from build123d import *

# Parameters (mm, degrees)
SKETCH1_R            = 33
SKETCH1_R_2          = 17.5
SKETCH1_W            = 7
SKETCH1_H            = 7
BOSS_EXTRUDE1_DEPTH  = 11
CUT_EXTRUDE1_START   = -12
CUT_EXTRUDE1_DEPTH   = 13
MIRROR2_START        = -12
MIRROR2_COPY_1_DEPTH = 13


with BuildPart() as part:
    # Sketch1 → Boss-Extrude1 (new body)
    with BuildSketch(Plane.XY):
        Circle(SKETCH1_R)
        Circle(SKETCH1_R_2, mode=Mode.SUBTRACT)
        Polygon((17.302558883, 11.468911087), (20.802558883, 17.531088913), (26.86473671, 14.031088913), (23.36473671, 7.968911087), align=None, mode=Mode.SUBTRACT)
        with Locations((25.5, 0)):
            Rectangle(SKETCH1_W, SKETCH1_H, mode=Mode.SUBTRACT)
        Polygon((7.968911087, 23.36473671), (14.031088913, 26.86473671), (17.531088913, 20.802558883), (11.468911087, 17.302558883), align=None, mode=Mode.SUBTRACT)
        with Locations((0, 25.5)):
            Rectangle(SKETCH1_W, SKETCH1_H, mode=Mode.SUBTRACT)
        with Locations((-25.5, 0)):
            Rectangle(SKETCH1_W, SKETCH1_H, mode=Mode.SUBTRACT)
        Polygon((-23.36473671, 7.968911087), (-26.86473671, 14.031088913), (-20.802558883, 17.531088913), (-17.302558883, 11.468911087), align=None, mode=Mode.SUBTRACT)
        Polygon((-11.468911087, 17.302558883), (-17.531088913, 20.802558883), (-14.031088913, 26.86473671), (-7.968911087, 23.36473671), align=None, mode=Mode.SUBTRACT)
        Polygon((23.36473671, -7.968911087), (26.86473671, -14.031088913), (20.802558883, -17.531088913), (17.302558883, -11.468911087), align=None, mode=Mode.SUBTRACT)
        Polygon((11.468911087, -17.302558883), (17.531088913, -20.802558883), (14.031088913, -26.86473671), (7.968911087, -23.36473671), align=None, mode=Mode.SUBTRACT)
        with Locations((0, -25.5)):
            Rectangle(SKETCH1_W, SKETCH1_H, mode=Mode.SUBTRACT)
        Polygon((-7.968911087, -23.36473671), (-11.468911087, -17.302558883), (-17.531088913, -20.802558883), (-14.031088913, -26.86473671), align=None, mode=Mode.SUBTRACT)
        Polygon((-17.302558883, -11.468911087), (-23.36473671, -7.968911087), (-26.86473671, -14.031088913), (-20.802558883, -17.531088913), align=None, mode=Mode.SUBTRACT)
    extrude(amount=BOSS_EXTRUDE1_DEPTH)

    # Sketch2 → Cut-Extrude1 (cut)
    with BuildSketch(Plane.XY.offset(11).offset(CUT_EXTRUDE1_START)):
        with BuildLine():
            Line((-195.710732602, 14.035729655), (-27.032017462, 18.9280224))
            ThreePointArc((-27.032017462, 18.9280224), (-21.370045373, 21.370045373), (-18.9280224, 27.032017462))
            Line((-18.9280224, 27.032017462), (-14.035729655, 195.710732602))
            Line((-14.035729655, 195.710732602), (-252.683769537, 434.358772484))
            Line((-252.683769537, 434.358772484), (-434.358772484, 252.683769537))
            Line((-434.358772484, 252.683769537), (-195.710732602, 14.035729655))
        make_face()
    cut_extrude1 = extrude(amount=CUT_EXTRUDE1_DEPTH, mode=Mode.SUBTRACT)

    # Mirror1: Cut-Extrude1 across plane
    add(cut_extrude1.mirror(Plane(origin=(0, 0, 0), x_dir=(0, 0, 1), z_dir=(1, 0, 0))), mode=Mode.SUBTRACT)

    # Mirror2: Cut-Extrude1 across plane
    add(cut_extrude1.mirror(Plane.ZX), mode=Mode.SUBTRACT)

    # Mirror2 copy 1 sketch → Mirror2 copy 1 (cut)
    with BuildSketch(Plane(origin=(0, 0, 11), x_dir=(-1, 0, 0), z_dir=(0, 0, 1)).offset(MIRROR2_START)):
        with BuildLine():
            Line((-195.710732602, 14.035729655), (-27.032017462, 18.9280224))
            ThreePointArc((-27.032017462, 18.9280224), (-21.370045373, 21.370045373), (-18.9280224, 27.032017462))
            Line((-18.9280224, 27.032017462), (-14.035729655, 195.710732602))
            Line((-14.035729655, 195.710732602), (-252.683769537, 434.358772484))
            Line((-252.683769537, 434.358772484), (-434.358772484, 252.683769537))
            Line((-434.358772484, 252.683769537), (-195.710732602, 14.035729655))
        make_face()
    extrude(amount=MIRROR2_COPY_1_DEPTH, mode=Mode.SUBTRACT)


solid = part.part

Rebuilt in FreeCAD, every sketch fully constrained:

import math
import FreeCAD as App
import Part
import Sketcher

V = App.Vector
Q = App.Units.Quantity


def add_polygon(sketch, points):
    """Adds a closed chain of lines whose ends are joined by coincident constraints."""
    first, n = sketch.GeometryCount, len(points)
    for a, b in zip(points, points[1:] + points[:1]):
        sketch.addGeometry(Part.LineSegment(App.Vector(*a, 0), App.Vector(*b, 0)), False)
    for i in range(n):
        sketch.addConstraint(Sketcher.Constraint("Coincident", first + i, 2, first + (i + 1) % n, 1))

doc = App.newDocument("Part")
body = doc.addObject("PartDesign::Body", "Body")

sketch1 = body.newObject("Sketcher::SketchObject", "Sketch")
sketch1.AttachmentSupport = (doc.getObject("XY_Plane"), [""])
sketch1.MapMode = "FlatFace"
sketch1.addGeometry(Part.Circle(V(0, 0, 0), V(0, 0, 1), 33), False)
add_polygon(sketch1, [(-11.468911, -17.302559), (-7.968911, -23.364737), (-14.031089, -26.864737), (-17.531089, -20.802559)])
add_polygon(sketch1, [(-23.364737, -7.968911), (-17.302559, -11.468911), (-20.802559, -17.531089), (-26.864737, -14.031089)])
add_polygon(sketch1, [(3.5, -29), (-3.5, -29), (-3.5, -22), (3.5, -22)])
add_polygon(sketch1, [(7.968911, -23.364737), (11.468911, -17.302559), (17.531089, -20.802559), (14.031089, -26.864737)])
add_polygon(sketch1, [(17.302559, -11.468911), (23.364737, -7.968911), (26.864737, -14.031089), (20.802559, -17.531089)])
add_polygon(sketch1, [(-22, -3.5), (-29, -3.5), (-29, 3.5), (-22, 3.5)])
add_polygon(sketch1, [(-17.302559, 11.468911), (-23.364737, 7.968911), (-26.864737, 14.031089), (-20.802559, 17.531089)])
add_polygon(sketch1, [(-7.968911, 23.364737), (-11.468911, 17.302559), (-17.531089, 20.802559), (-14.031089, 26.864737)])
sketch1.addGeometry(Part.Circle(V(0, 0, 0), V(0, 0, 1), 17.5), False)
add_polygon(sketch1, [(29, -3.5), (22, -3.5), (22, 3.5), (29, 3.5)])
add_polygon(sketch1, [(23.364737, 7.968911), (17.302559, 11.468911), (20.802559, 17.531089), (26.864737, 14.031089)])
add_polygon(sketch1, [(3.5, 22), (-3.5, 22), (-3.5, 29), (3.5, 29)])
add_polygon(sketch1, [(11.468911, 17.302559), (7.968911, 23.364737), (14.031089, 26.864737), (17.531089, 20.802559)])
sketch1.addConstraint(Sketcher.Constraint("Horizontal", 9))
sketch1.addConstraint(Sketcher.Constraint("Vertical", 10))
sketch1.addConstraint(Sketcher.Constraint("Horizontal", 11))
sketch1.addConstraint(Sketcher.Constraint("Vertical", 12))
sketch1.addConstraint(Sketcher.Constraint("Horizontal", 21))
sketch1.addConstraint(Sketcher.Constraint("Vertical", 22))
sketch1.addConstraint(Sketcher.Constraint("Horizontal", 23))
sketch1.addConstraint(Sketcher.Constraint("Vertical", 24))
sketch1.addConstraint(Sketcher.Constraint("Horizontal", 34))
sketch1.addConstraint(Sketcher.Constraint("Vertical", 35))
sketch1.addConstraint(Sketcher.Constraint("Horizontal", 36))
sketch1.addConstraint(Sketcher.Constraint("Vertical", 37))
sketch1.addConstraint(Sketcher.Constraint("Horizontal", 42))
sketch1.addConstraint(Sketcher.Constraint("Vertical", 43))
sketch1.addConstraint(Sketcher.Constraint("Horizontal", 44))
sketch1.addConstraint(Sketcher.Constraint("Vertical", 45))
sketch1.addConstraint(Sketcher.Constraint("Coincident", 0, 3, -1, 1))
sketch1.addConstraint(Sketcher.Constraint("Coincident", 33, 3, -1, 1))
sketch1.addConstraint(Sketcher.Constraint("Symmetric", 17, 2, 25, 2, -1, 1))
sketch1.addConstraint(Sketcher.Constraint("Symmetric", 18, 2, 26, 2, -1, 1))
sketch1.addConstraint(Sketcher.Constraint("Symmetric", 19, 2, 27, 2, -1, 1))
sketch1.addConstraint(Sketcher.Constraint("Symmetric", 20, 2, 28, 2, -1, 1))
sketch1.addConstraint(Sketcher.Constraint("Symmetric", 13, 2, 29, 2, -1, 1))
sketch1.addConstraint(Sketcher.Constraint("Symmetric", 14, 2, 30, 2, -1, 1))
sketch1.addConstraint(Sketcher.Constraint("Symmetric", 15, 2, 31, 2, -1, 1))
sketch1.addConstraint(Sketcher.Constraint("Symmetric", 16, 2, 32, 2, -1, 1))
sketch1.addConstraint(Sketcher.Constraint("Symmetric", 23, 2, 34, 2, -1, 1))
sketch1.addConstraint(Sketcher.Constraint("Symmetric", 21, 2, 36, 2, -1, 1))
sketch1.addConstraint(Sketcher.Constraint("Symmetric", 5, 2, 38, 2, -1, 1))
sketch1.addConstraint(Sketcher.Constraint("Symmetric", 6, 2, 39, 2, -1, 1))
sketch1.addConstraint(Sketcher.Constraint("Symmetric", 7, 2, 40, 2, -1, 1))
sketch1.addConstraint(Sketcher.Constraint("Symmetric", 8, 2, 41, 2, -1, 1))
sketch1.addConstraint(Sketcher.Constraint("Symmetric", 11, 2, 42, 2, -1, 1))
sketch1.addConstraint(Sketcher.Constraint("Symmetric", 9, 2, 44, 2, -1, 1))
sketch1.addConstraint(Sketcher.Constraint("Symmetric", 1, 2, 46, 2, -1, 1))
sketch1.addConstraint(Sketcher.Constraint("Symmetric", 2, 2, 47, 2, -1, 1))
sketch1.addConstraint(Sketcher.Constraint("Symmetric", 3, 2, 48, 2, -1, 1))
sketch1.addConstraint(Sketcher.Constraint("Symmetric", 4, 2, 49, 2, -1, 1))
sketch1.addConstraint(Sketcher.Constraint("Symmetric", 4, 2, 13, 2, -2))
sketch1.addConstraint(Sketcher.Constraint("Symmetric", 3, 2, 14, 2, -2))
sketch1.addConstraint(Sketcher.Constraint("Symmetric", 2, 2, 15, 2, -2))
sketch1.addConstraint(Sketcher.Constraint("Symmetric", 1, 2, 16, 2, -2))
sketch1.addConstraint(Sketcher.Constraint("Symmetric", 8, 2, 17, 2, -2))
sketch1.addConstraint(Sketcher.Constraint("Symmetric", 7, 2, 18, 2, -2))
sketch1.addConstraint(Sketcher.Constraint("Symmetric", 6, 2, 19, 2, -2))
sketch1.addConstraint(Sketcher.Constraint("Symmetric", 5, 2, 20, 2, -2))
sketch1.addConstraint(Sketcher.Constraint("Perpendicular", 1, 2))
sketch1.addConstraint(Sketcher.Constraint("Perpendicular", 2, 3))
sketch1.addConstraint(Sketcher.Constraint("Perpendicular", 3, 4))
sketch1.addConstraint(Sketcher.Constraint("Perpendicular", 5, 6))
sketch1.addConstraint(Sketcher.Constraint("Perpendicular", 6, 7))
sketch1.addConstraint(Sketcher.Constraint("Perpendicular", 7, 8))
sketch1.addConstraint(Sketcher.Constraint("Parallel", 8, 13))
sketch1.addConstraint(Sketcher.Constraint("Horizontal", 24, 2, 34, 2))
sketch1.addConstraint(Sketcher.Constraint("Vertical", 10, 2, 42, 2))
sketch1.addConstraint(Sketcher.Constraint("Equal", 11, 21))
sketch1.addConstraint(Sketcher.Constraint("Equal", 44, 10))
sketch1.addConstraint(Sketcher.Constraint("Equal", 12, 22))
sketch1.addConstraint(Sketcher.Constraint("Equal", 1, 2))
sketch1.addConstraint(Sketcher.Constraint("Equal", 4, 5))
sketch1.addConstraint(Sketcher.Constraint("Equal", 5, 6))
sketch1.addConstraint(Sketcher.Constraint("Diameter", 0, Q("66 mm")))
sketch1.addConstraint(Sketcher.Constraint("Diameter", 33, Q("35 mm")))
sketch1.addConstraint(Sketcher.Constraint("DistanceX", 9, 2, 9, 1, Q("7 mm")))
sketch1.addConstraint(Sketcher.Constraint("Angle", 1, Q("-60 deg")))
sketch1.addConstraint(Sketcher.Constraint("Distance", 1, Q("7 mm")))
sketch1.addConstraint(Sketcher.Constraint("DistanceY", 9, 2, -1, 1, Q("29 mm")))
sketch1.addConstraint(Sketcher.Constraint("DistanceX", 21, 2, -1, 1, Q("29 mm")))
sketch1.addConstraint(Sketcher.Constraint("DistanceX", 1, 2, -1, 1, Q("7.968911 mm")))
sketch1.addConstraint(Sketcher.Constraint("DistanceY", 3, 2, -1, 1, Q("20.802559 mm")))
sketch1.addConstraint(Sketcher.Constraint("DistanceX", 5, 2, -1, 1, Q("17.302559 mm")))
sketch1.addConstraint(Sketcher.Constraint("DistanceY", 5, 2, -1, 1, Q("11.468911 mm")))
pad1 = body.newObject("PartDesign::Pad", "Pad")
pad1.Profile = sketch1
pad1.Length = 11

sketch2 = body.newObject("Sketcher::SketchObject", "Sketch001")
sketch2.AttachmentSupport = (doc.getObject("XY_Plane"), [""])
sketch2.MapMode = "FlatFace"
sketch2.AttachmentOffset = App.Placement(V(0, 0, -1), App.Rotation())
sketch2.addGeometry(Part.LineSegment(V(-195.710733, 14.03573, 0), V(-27.032017, 18.928022, 0)), False)
sketch2.addGeometry(Part.ArcOfCircle(Part.Circle(V(-27.274083, 27.274083, 0), V(0, 0, 1), 8.349571), math.radians(-88.338681), math.radians(-1.661319)), False)
sketch2.addGeometry(Part.LineSegment(V(-18.928022, 27.032017, 0), V(-14.03573, 195.710733, 0)), False)
sketch2.addGeometry(Part.LineSegment(V(-14.03573, 195.710733, 0), V(-252.68377, 434.358772, 0)), False)
sketch2.addGeometry(Part.LineSegment(V(-252.68377, 434.358772, 0), V(-434.358772, 252.68377, 0)), False)
sketch2.addGeometry(Part.LineSegment(V(-434.358772, 252.68377, 0), V(-195.710733, 14.03573, 0)), False)
sketch2.addConstraint(Sketcher.Constraint("Tangent", 0, 2, 1, 1))
sketch2.addConstraint(Sketcher.Constraint("Tangent", 1, 2, 2, 1))
sketch2.addConstraint(Sketcher.Constraint("Coincident", 2, 2, 3, 1))
sketch2.addConstraint(Sketcher.Constraint("Coincident", 3, 2, 4, 1))
sketch2.addConstraint(Sketcher.Constraint("Coincident", 4, 2, 5, 1))
sketch2.addConstraint(Sketcher.Constraint("Coincident", 5, 2, 0, 1))
sketch2.addConstraint(Sketcher.Constraint("Perpendicular", 3, 4))
sketch2.addConstraint(Sketcher.Constraint("Perpendicular", 4, 5))
sketch2.addConstraint(Sketcher.Constraint("Equal", 0, 2))
sketch2.addConstraint(Sketcher.Constraint("Equal", 3, 5))
sketch2.addConstraint(Sketcher.Constraint("Angle", 3, Q("135 deg")))
sketch2.addConstraint(Sketcher.Constraint("Radius", 1, Q("8.349571 mm")))
sketch2.addConstraint(Sketcher.Constraint("DistanceX", 2, 2, -1, 1, Q("14.03573 mm")))
sketch2.addConstraint(Sketcher.Constraint("DistanceX", 3, 2, -1, 1, Q("252.68377 mm")))
sketch2.addConstraint(Sketcher.Constraint("DistanceY", -1, 1, 4, 2, Q("252.68377 mm")))
sketch2.addConstraint(Sketcher.Constraint("DistanceY", 1, 3, 2, 2, Q("168.436649 mm")))
sketch2.addConstraint(Sketcher.Constraint("Distance", 0, Q("168.749647 mm")))
pocket1 = body.newObject("PartDesign::Pocket", "Pocket")
pocket1.Profile = sketch2
pocket1.Length = 13
pocket1.Reversed = True
doc.recompute()

mirrored = body.newObject("PartDesign::Mirrored", "Mirrored")
mirrored.Originals = [pocket1]
mirrored.MirrorPlane = (doc.getObject("YZ_Plane"), [""])
body.Tip = mirrored
doc.recompute()

mirrored2 = body.newObject("PartDesign::Mirrored", "Mirrored001")
mirrored2.Originals = [pocket1]
mirrored2.MirrorPlane = (doc.getObject("XZ_Plane"), [""])
body.Tip = mirrored2

sketch3 = body.newObject("Sketcher::SketchObject", "Sketch002")
sketch3.AttachmentSupport = (doc.getObject("XY_Plane"), [""])
sketch3.MapMode = "FlatFace"
sketch3.AttachmentOffset = App.Placement(V(0, 0, -1), App.Rotation())
sketch3.addGeometry(Part.LineSegment(V(195.710733, -14.03573, 0), V(27.032017, -18.928022, 0)), False)
sketch3.addGeometry(Part.ArcOfCircle(Part.Circle(V(27.274083, -27.274083, 0), V(0, 0, 1), 8.349571), math.radians(91.661319), math.radians(178.338681)), False)
sketch3.addGeometry(Part.LineSegment(V(18.928022, -27.032017, 0), V(14.03573, -195.710733, 0)), False)
sketch3.addGeometry(Part.LineSegment(V(14.03573, -195.710733, 0), V(252.68377, -434.358772, 0)), False)
sketch3.addGeometry(Part.LineSegment(V(252.68377, -434.358772, 0), V(434.358772, -252.68377, 0)), False)
sketch3.addGeometry(Part.LineSegment(V(434.358772, -252.68377, 0), V(195.710733, -14.03573, 0)), False)
sketch3.addConstraint(Sketcher.Constraint("Tangent", 0, 2, 1, 1))
sketch3.addConstraint(Sketcher.Constraint("Tangent", 1, 2, 2, 1))
sketch3.addConstraint(Sketcher.Constraint("Coincident", 2, 2, 3, 1))
sketch3.addConstraint(Sketcher.Constraint("Coincident", 3, 2, 4, 1))
sketch3.addConstraint(Sketcher.Constraint("Coincident", 4, 2, 5, 1))
sketch3.addConstraint(Sketcher.Constraint("Coincident", 5, 2, 0, 1))
sketch3.addConstraint(Sketcher.Constraint("Perpendicular", 3, 4))
sketch3.addConstraint(Sketcher.Constraint("Perpendicular", 4, 5))
sketch3.addConstraint(Sketcher.Constraint("Equal", 0, 2))
sketch3.addConstraint(Sketcher.Constraint("Equal", 3, 5))
sketch3.addConstraint(Sketcher.Constraint("Angle", 3, Q("-45 deg")))
sketch3.addConstraint(Sketcher.Constraint("Radius", 1, Q("8.349571 mm")))
sketch3.addConstraint(Sketcher.Constraint("DistanceX", -1, 1, 2, 2, Q("14.03573 mm")))
sketch3.addConstraint(Sketcher.Constraint("DistanceX", -1, 1, 3, 2, Q("252.68377 mm")))
sketch3.addConstraint(Sketcher.Constraint("DistanceY", 4, 2, -1, 1, Q("252.68377 mm")))
sketch3.addConstraint(Sketcher.Constraint("DistanceY", 2, 2, 1, 3, Q("168.436649 mm")))
sketch3.addConstraint(Sketcher.Constraint("Distance", 0, Q("168.749647 mm")))
pocket2 = body.newObject("PartDesign::Pocket", "Pocket001")
pocket2.Profile = sketch3
pocket2.Length = 13
pocket2.Reversed = True

doc.recompute()
